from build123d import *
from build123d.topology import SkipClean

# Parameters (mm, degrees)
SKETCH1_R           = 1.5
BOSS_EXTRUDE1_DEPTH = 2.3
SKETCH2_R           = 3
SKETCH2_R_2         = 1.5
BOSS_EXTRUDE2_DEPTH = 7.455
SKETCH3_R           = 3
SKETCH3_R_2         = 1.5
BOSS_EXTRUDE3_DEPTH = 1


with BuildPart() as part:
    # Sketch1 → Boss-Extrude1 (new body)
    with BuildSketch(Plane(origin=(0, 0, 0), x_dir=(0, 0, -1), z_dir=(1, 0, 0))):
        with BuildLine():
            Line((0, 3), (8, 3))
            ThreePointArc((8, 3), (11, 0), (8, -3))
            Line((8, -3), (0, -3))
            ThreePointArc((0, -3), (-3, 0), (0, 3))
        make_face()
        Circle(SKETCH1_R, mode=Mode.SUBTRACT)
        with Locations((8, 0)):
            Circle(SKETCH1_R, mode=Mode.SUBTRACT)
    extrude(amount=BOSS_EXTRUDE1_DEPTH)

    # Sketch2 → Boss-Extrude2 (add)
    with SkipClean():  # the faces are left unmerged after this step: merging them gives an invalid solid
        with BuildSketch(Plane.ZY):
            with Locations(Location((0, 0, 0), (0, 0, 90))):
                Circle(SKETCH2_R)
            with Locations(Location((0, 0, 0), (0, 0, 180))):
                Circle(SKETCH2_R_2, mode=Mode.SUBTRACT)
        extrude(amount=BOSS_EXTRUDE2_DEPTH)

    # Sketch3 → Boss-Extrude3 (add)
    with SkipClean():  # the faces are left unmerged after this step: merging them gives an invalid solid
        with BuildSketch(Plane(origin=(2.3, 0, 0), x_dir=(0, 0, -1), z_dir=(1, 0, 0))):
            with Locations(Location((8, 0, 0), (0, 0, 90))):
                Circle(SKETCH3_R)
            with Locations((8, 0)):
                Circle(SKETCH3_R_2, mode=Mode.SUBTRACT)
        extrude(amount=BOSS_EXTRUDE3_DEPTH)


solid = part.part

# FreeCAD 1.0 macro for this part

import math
import FreeCAD as App
import Part
import Sketcher
Q = App.Units.Quantity

doc = App.newDocument("Part")
body = doc.addObject("PartDesign::Body", "Body")

# Sketch on YZ plane
sketch1 = body.newObject("Sketcher::SketchObject", "Sketch")
sketch1.AttachmentSupport = (doc.getObject("YZ_Plane"), [""])
sketch1.MapMode = "FlatFace"
sketch1.addGeometry(Part.LineSegment(App.Vector(3, -8, 0), App.Vector(3, 0, 0)), False)
sketch1.addGeometry(Part.ArcOfCircle(Part.Circle(App.Vector(0, 0, 0), App.Vector(0, 0, 1), 3), math.radians(0), math.radians(180)), False)
sketch1.addGeometry(Part.LineSegment(App.Vector(-3, 0, 0), App.Vector(-3, -8, 0)), False)
sketch1.addGeometry(Part.ArcOfCircle(Part.Circle(App.Vector(0, -8, 0), App.Vector(0, 0, 1), 3), math.radians(180), math.radians(360)), False)
sketch1.addGeometry(Part.Circle(App.Vector(0, -8, 0), App.Vector(0, 0, 1), 1.5), False)
sketch1.addGeometry(Part.Circle(App.Vector(0, 0, 0), App.Vector(0, 0, 1), 1.5), False)
sketch1.addConstraint(Sketcher.Constraint("Tangent", 0, 2, 1, 1))
sketch1.addConstraint(Sketcher.Constraint("Tangent", 1, 2, 2, 1))
sketch1.addConstraint(Sketcher.Constraint("Tangent", 2, 2, 3, 1))
sketch1.addConstraint(Sketcher.Constraint("Tangent", 3, 2, 0, 1))
sketch1.addConstraint(Sketcher.Constraint("Vertical", 0))
sketch1.addConstraint(Sketcher.Constraint("Vertical", 2))
sketch1.addConstraint(Sketcher.Constraint("Coincident", 1, 3, -1, 1))
sketch1.addConstraint(Sketcher.Constraint("Coincident", 5, 3, -1, 1))
sketch1.addConstraint(Sketcher.Constraint("Coincident", 4, 3, 3, 3))
sketch1.addConstraint(Sketcher.Constraint("Equal", 4, 5))
sketch1.addConstraint(Sketcher.Constraint("Diameter", 4, Q("3 mm")))
sketch1.addConstraint(Sketcher.Constraint("Radius", 1, Q("3 mm")))
sketch1.addConstraint(Sketcher.Constraint("DistanceY", 0, 1, 0, 2, Q("8 mm")))
pad1 = body.newObject("PartDesign::Pad", "Pad")
pad1.Profile = sketch1
pad1.Length = 2.3

# Sketch on YZ plane
sketch2 = body.newObject("Sketcher::SketchObject", "Sketch001")
sketch2.AttachmentSupport = (doc.getObject("YZ_Plane"), [""])
sketch2.MapMode = "FlatFace"
sketch2.addGeometry(Part.Circle(App.Vector(0, 0, 0), App.Vector(0, 0, 1), 3), False)
sketch2.addGeometry(Part.Circle(App.Vector(0, 0, 0), App.Vector(0, 0, 1), 1.5), False)
sketch2.addConstraint(Sketcher.Constraint("Coincident", 0, 3, -1, 1))
sketch2.addConstraint(Sketcher.Constraint("Coincident", 1, 3, -1, 1))
sketch2.addConstraint(Sketcher.Constraint("Diameter", 0, Q("6 mm")))
sketch2.addConstraint(Sketcher.Constraint("Diameter", 1, Q("3 mm")))
pad2 = body.newObject("PartDesign::Pad", "Pad001")
pad2.Profile = sketch2
pad2.Length = 7.455
pad2.Reversed = True

# Sketch on YZ plane
sketch3 = body.newObject("Sketcher::SketchObject", "Sketch002")
sketch3.AttachmentSupport = (doc.getObject("YZ_Plane"), [""])
sketch3.MapMode = "FlatFace"
sketch3.AttachmentOffset = App.Placement(App.Vector(0, 0, 2.3), App.Rotation())
sketch3.addGeometry(Part.Circle(App.Vector(0, -8, 0), App.Vector(0, 0, 1), 3), False)
sketch3.addGeometry(Part.Circle(App.Vector(0, -8, 0), App.Vector(0, 0, 1), 1.5), False)
sketch3.addConstraint(Sketcher.Constraint("Coincident", 1, 3, 0, 3))
sketch3.addConstraint(Sketcher.Constraint("PointOnObject", 0, 3, -2))
sketch3.addConstraint(Sketcher.Constraint("Diameter", 0, Q("6 mm")))
sketch3.addConstraint(Sketcher.Constraint("Diameter", 1, Q("3 mm")))
sketch3.addConstraint(Sketcher.Constraint("DistanceY", 0, 3, -1, 1, Q("8 mm")))
pad3 = body.newObject("PartDesign::Pad", "Pad002")
pad3.Profile = sketch3
pad3.Length = 1

doc.recompute()
